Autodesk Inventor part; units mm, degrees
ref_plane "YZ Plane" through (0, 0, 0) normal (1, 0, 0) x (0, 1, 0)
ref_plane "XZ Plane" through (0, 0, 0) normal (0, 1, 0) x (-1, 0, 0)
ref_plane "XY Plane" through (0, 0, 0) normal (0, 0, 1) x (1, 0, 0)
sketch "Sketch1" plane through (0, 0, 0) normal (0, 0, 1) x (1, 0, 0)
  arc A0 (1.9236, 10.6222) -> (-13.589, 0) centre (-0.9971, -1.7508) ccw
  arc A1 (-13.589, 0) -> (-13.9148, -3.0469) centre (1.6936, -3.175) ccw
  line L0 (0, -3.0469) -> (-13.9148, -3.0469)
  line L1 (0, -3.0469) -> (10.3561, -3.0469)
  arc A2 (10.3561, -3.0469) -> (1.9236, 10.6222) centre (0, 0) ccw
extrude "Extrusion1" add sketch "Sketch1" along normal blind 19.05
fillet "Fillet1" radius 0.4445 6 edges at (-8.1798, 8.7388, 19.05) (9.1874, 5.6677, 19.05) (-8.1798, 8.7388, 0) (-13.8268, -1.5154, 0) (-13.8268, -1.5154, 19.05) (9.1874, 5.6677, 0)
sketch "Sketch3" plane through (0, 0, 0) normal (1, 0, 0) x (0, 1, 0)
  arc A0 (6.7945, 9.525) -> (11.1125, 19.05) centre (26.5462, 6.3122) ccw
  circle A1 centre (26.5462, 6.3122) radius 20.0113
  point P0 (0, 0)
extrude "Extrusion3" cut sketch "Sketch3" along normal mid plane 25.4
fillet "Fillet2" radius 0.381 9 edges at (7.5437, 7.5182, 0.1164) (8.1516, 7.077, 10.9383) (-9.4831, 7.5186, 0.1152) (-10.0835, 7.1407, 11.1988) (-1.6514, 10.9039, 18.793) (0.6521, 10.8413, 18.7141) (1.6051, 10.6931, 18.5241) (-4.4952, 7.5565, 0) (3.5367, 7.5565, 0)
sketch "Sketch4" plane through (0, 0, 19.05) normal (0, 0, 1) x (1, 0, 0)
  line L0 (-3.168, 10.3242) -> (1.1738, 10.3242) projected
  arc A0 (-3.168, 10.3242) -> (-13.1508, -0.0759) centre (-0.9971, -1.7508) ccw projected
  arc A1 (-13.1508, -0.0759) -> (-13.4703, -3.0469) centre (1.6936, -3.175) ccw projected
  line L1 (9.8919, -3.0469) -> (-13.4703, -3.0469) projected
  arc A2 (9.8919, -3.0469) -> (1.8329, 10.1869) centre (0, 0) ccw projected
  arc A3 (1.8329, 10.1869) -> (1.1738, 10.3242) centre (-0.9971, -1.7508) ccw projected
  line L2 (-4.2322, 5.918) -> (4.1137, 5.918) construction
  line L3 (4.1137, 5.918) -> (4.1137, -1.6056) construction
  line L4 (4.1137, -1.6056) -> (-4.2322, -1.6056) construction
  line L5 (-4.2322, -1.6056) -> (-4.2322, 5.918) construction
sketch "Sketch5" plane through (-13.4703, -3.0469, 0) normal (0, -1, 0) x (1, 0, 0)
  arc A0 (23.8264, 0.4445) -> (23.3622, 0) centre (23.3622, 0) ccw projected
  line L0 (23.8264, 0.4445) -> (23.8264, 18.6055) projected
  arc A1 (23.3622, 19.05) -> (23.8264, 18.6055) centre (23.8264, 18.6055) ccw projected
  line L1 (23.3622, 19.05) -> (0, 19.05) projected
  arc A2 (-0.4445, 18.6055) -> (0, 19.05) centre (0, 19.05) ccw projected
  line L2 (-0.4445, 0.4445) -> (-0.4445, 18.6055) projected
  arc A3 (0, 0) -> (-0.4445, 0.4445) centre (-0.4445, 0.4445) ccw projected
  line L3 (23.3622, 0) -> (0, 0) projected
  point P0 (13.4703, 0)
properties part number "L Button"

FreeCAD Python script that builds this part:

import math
import FreeCAD as App
import Part
import Sketcher
from FreeCAD import Vector
Q = App.Units.Quantity


def edges_at(feature, points):
    """Names of the edges that pass closest to the given points."""
    edges = feature.Shape.Edges
    near = lambda p: min(range(len(edges)), key=lambda i: edges[i].distToShape(Part.Vertex(*p))[0])
    return sorted({f"Edge{near(p) + 1}" for p in points})

doc = App.newDocument("Part")
body = doc.addObject("PartDesign::Body", "Body")

# Sketch on XY plane
sketch1 = doc.addObject("Sketcher::SketchObject", "Sketch")
body.addObject(sketch1)
sketch1.AttachmentSupport = (doc.XY_Plane, [""])
sketch1.MapMode = "FlatFace"
sketch1.addGeometry([
    Part.ArcOfCircle(Part.Circle(Vector(0, 0, 0), Vector(0, 0, 1), 10.795018), math.radians(-16.394572), math.radians(79.735411)),
    Part.ArcOfCircle(Part.Circle(Vector(-0.9971, -1.7508, 0), Vector(0, 0, 1), 12.713049), math.radians(76.718216), math.radians(172.084244)),
    Part.ArcOfCircle(Part.Circle(Vector(1.6936, -3.175, 0), Vector(0, 0, 1), 15.608923), math.radians(168.263604), math.radians(179.529777)),
    Part.LineSegment(Vector(-13.9148, -3.0469, 0), Vector(10.3561, -3.0469, 0)),
], False)
sketch1.addConstraint([
    Sketcher.Constraint("Coincident", 0, 2, 1, 1),
    Sketcher.Constraint("Coincident", 1, 2, 2, 1),
    Sketcher.Constraint("Coincident", 2, 2, 3, 1),
    Sketcher.Constraint("Coincident", 3, 2, 0, 1),
    Sketcher.Constraint("Horizontal", 3),
    Sketcher.Constraint("Coincident", 0, 3, -1, 1),
    Sketcher.Constraint("PointOnObject", 1, 2, -1),
    Sketcher.Constraint("Radius", 0, Q("0.425 in")),
    Sketcher.Constraint("Radius", 1, Q("0.5005118 in")),
    Sketcher.Constraint("Radius", 2, Q("15.609 mm")),
    Sketcher.Constraint("DistanceY", 2, 3, -1, 1, Q("0.125 in")),
    Sketcher.Constraint("DistanceX", 1, 2, -1, 1, Q("0.535 in")),
    Sketcher.Constraint("DistanceX", 1, 3, 0, 2, Q("0.115 in")),
    Sketcher.Constraint("DistanceX", 3, 1, 3, 2, Q("24.271 mm")),
])
pad1 = doc.addObject("PartDesign::Pad", "Pad")
body.addObject(pad1)
pad1.Profile = sketch1
pad1.Length = Q("0.75 in")
doc.recompute()

fillet = doc.addObject("PartDesign::Fillet", "Fillet")
body.addObject(fillet)
fillet.Base = (pad1, edges_at(pad1, [
    (-8.18, 8.739, 19.05),
    (9.187, 5.668, 19.05),
    (-8.18, 8.739, 0),
    (-13.827, -1.515, 0),
    (-13.827, -1.515, 19.05),
    (9.187, 5.668, 0),
]))
fillet.Radius = Q("0.0175 in")

# Sketch on YZ plane
sketch2 = doc.addObject("Sketcher::SketchObject", "Sketch001")
body.addObject(sketch2)
sketch2.AttachmentSupport = (doc.YZ_Plane, [""])
sketch2.MapMode = "FlatFace"
sketch2.addGeometry([
    Part.ArcOfCircle(Part.Circle(Vector(26.5462, 6.3122, 0), Vector(0, 0, 1), 20.0113), math.radians(140.466331), math.radians(170.761215)),
    Part.ArcOfCircle(Part.Circle(Vector(26.5462, 6.3122, 0), Vector(0, 0, 1), 20.01129), math.radians(170.761215), math.radians(500.466331)),
], False)
sketch2.addConstraint([
    Sketcher.Constraint("Tangent", 0, 1, 1, 2),
    Sketcher.Constraint("Coincident", 1, 1, 0, 2),
    Sketcher.Constraint("DistanceY", -1, 1, 0, 1, Q("0.75 in")),
    Sketcher.Constraint("Radius", 0, Q("20.0113 mm")),
    Sketcher.Constraint("DistanceX", 1, 1, 0, 1, Q("0.17 in")),
    Sketcher.Constraint("DistanceX", -1, 1, 0, 1, Q("0.4375 in")),
    Sketcher.Constraint("DistanceY", -1, 1, 1, 1, Q("0.375 in")),
])
pocket1 = doc.addObject("PartDesign::Pocket", "Pocket")
body.addObject(pocket1)
pocket1.Profile = sketch2
pocket1.Length = Q("1 in")
pocket1.Midplane = True
doc.recompute()

fillet2 = doc.addObject("PartDesign::Fillet", "Fillet001")
body.addObject(fillet2)
fillet2.Base = (pocket1, edges_at(pocket1, [
    (7.544, 7.518, 0.116),
    (8.152, 7.077, 10.938),
    (-9.483, 7.519, 0.115),
    (-10.084, 7.141, 11.199),
    (-1.651, 10.904, 18.793),
    (0.652, 10.841, 18.714),
    (1.605, 10.693, 18.524),
    (-4.495, 7.556, 0),
    (3.537, 7.556, 0),
]))
fillet2.Radius = Q("0.015 in")

doc.recompute()
